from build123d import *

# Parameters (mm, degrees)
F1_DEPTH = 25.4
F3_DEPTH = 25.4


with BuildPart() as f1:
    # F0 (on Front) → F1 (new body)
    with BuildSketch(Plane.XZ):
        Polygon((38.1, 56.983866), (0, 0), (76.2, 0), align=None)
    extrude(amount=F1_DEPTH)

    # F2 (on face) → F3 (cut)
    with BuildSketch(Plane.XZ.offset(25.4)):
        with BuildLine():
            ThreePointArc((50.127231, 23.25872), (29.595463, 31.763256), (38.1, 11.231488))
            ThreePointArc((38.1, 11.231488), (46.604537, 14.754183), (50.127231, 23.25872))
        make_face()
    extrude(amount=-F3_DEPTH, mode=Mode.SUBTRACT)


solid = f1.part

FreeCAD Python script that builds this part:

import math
import FreeCAD as App
import Part
import Sketcher

V = App.Vector
Q = App.Units.Quantity

doc = App.newDocument("Part")
body = doc.addObject("PartDesign::Body", "Body")

sketch1 = body.newObject("Sketcher::SketchObject", "Sketch")
sketch1.AttachmentSupport = (doc.getObject("XZ_Plane"), [""])
sketch1.MapMode = "FlatFace"
sketch1.addGeometry([
    Part.LineSegment(V(38, 57, 0), V(0, 0, 0)),
    Part.LineSegment(V(0, 0, 0), V(76, 0, 0)),
    Part.LineSegment(V(76, 0, 0), V(38, 57, 0)),
], False)
sketch1.addConstraint([
    Sketcher.Constraint("Coincident", 0, 2, 1, 1),
    Sketcher.Constraint("Coincident", 1, 2, 2, 1),
    Sketcher.Constraint("Coincident", 2, 2, 0, 1),
    Sketcher.Constraint("Horizontal", 1),
    Sketcher.Constraint("Coincident", 0, 2, -1, 1),
    Sketcher.Constraint("Equal", 0, 2),
    Sketcher.Constraint("DistanceX", 1, 1, 1, 2, Q("3 in")),
    Sketcher.Constraint("Distance", 0, 68.547582),
])
pad1 = body.newObject("PartDesign::Pad", "Pad")
pad1.Profile = sketch1
pad1.Length = Q("1 in")

sketch2 = body.newObject("Sketcher::SketchObject", "Sketch001")
sketch2.AttachmentSupport = (doc.getObject("XZ_Plane"), [""])
sketch2.MapMode = "FlatFace"
sketch2.AttachmentOffset = App.Placement(V(0, 0, 1 * 25.4), App.Rotation())
sketch2.addGeometry([
    Part.ArcOfCircle(Part.Circle(V(38, 23, 0), V(0, 0, 1), 12), math.radians(0), math.radians(270)),
    Part.ArcOfCircle(Part.Circle(V(38, 23, 0), V(0, 0, 1), 12), math.radians(-90), math.radians(0)),
], False)
sketch2.addConstraint([
    Sketcher.Constraint("Tangent", 0, 1, 1, 2),
    Sketcher.Constraint("Coincident", 1, 1, 0, 2),
    Sketcher.Constraint("Horizontal", 1, 3, 0, 1),
    Sketcher.Constraint("Vertical", 0, 3, 1, 1),
    Sketcher.Constraint("DistanceX", -1, 1, 0, 3, Q("1.5 in")),
    Sketcher.Constraint("Radius", 0, 12.027231),
    Sketcher.Constraint("DistanceY", -1, 1, 0, 3, 23.258719),
])
pocket1 = body.newObject("PartDesign::Pocket", "Pocket")
pocket1.Profile = sketch2
pocket1.Length = Q("1 in")

doc.recompute()
